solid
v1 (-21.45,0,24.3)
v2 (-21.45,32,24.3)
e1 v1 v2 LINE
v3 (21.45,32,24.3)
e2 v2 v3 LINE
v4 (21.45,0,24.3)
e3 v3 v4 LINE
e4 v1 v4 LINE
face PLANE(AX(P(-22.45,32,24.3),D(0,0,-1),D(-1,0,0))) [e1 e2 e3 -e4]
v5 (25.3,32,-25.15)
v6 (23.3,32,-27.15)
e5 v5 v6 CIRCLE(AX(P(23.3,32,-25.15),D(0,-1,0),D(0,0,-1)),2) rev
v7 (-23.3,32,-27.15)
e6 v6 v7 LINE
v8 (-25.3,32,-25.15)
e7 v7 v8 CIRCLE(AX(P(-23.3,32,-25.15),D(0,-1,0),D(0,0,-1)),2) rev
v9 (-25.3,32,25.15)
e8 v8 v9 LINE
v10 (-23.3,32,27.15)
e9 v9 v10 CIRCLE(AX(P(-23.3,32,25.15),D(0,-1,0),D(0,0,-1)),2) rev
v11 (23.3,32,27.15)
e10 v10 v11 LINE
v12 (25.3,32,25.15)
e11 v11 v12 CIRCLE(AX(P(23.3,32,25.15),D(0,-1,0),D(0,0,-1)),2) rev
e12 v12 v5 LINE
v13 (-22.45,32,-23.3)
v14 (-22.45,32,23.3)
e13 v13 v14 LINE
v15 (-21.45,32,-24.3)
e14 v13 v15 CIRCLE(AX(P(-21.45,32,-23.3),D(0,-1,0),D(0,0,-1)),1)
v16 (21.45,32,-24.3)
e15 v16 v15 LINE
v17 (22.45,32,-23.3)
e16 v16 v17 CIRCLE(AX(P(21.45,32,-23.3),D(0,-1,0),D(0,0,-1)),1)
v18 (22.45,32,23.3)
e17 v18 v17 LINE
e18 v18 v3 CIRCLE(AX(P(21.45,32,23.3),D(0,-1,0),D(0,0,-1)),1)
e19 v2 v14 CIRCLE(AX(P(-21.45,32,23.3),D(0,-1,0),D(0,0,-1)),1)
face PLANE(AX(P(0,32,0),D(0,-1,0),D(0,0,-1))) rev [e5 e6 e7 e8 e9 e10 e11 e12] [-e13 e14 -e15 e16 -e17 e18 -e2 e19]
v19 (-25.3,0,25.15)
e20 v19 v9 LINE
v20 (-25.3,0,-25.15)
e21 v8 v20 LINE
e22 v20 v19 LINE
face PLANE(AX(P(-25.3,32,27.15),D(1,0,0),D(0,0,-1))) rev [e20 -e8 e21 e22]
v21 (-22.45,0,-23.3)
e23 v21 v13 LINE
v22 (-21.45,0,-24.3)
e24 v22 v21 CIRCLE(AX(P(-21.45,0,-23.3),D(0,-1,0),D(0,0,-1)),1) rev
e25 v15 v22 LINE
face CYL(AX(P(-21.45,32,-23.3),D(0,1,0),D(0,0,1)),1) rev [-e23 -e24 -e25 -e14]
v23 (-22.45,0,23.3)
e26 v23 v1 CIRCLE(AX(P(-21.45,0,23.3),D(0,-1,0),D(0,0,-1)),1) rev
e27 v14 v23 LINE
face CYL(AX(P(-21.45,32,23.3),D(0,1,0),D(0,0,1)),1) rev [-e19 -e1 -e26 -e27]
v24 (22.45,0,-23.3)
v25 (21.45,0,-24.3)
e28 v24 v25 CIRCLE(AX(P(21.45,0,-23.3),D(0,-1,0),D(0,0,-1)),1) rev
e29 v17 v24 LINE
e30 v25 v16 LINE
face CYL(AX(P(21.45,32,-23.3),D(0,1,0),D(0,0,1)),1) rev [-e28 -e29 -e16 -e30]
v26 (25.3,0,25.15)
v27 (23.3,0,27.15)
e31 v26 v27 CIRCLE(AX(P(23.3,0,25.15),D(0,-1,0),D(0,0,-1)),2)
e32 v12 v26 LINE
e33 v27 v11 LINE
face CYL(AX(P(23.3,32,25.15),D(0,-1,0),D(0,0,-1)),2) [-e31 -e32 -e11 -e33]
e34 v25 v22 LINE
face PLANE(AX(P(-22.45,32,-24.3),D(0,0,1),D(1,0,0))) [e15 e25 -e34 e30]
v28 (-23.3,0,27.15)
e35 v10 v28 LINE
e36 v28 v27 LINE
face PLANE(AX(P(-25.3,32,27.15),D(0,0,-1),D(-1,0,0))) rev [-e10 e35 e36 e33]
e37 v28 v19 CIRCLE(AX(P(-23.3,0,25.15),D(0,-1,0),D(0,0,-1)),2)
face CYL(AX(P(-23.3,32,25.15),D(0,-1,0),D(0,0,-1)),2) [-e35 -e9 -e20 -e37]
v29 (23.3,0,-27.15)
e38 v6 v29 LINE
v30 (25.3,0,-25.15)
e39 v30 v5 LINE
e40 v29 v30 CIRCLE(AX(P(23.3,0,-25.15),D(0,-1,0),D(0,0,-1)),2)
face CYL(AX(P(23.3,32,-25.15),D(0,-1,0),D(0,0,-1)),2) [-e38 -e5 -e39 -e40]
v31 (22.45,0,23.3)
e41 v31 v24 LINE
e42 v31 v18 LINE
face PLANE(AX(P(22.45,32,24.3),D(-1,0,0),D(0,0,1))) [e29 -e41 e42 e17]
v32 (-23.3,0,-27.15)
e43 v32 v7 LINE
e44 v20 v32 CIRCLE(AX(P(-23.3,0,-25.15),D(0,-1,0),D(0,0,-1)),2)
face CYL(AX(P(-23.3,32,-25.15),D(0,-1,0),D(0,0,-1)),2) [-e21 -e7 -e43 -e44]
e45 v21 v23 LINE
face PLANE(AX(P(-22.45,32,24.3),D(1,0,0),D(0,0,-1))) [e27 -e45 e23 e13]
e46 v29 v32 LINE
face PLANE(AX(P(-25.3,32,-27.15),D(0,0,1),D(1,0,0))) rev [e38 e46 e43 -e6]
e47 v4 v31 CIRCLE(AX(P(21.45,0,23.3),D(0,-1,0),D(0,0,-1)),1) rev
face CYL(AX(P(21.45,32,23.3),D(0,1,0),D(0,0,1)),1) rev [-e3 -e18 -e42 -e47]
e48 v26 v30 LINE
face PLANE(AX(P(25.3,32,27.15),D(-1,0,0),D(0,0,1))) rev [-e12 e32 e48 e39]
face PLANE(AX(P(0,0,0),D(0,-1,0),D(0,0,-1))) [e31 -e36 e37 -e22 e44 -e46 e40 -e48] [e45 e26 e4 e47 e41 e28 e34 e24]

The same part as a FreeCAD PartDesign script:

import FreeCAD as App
import Part
import Sketcher
Q = App.Units.Quantity


def edges_at(feature, points):
    """Names of the edges that pass closest to the given points."""
    edges = feature.Shape.Edges
    near = lambda p: min(range(len(edges)), key=lambda i: edges[i].distToShape(Part.Vertex(*p))[0])
    return sorted({f"Edge{near(p) + 1}" for p in points})


def add_polygon(sketch, points):
    """Adds a closed chain of lines whose ends are joined by coincident constraints."""
    first, n = sketch.GeometryCount, len(points)
    for a, b in zip(points, points[1:] + points[:1]):
        sketch.addGeometry(Part.LineSegment(App.Vector(*a, 0), App.Vector(*b, 0)), False)
    for i in range(n):
        sketch.addConstraint(Sketcher.Constraint("Coincident", first + i, 2, first + (i + 1) % n, 1))

doc = App.newDocument("Part")
body = doc.addObject("PartDesign::Body", "Body")

sketch1 = body.newObject("Sketcher::SketchObject", "Sketch")
sketch1.AttachmentSupport = (doc.getObject("XZ_Plane"), [""])
sketch1.MapMode = "FlatFace"
add_polygon(sketch1, [(-25, -27), (-25, 27), (25, 27), (25, -27)])
add_polygon(sketch1, [(22, 24), (-22, 24), (-22, -24), (22, -24)])
sketch1.addConstraint([
    Sketcher.Constraint("Vertical", 0),
    Sketcher.Constraint("Horizontal", 1),
    Sketcher.Constraint("Vertical", 2),
    Sketcher.Constraint("Horizontal", 3),
    Sketcher.Constraint("Horizontal", 4),
    Sketcher.Constraint("Vertical", 5),
    Sketcher.Constraint("Horizontal", 6),
    Sketcher.Constraint("Vertical", 7),
    Sketcher.Constraint("Symmetric", 0, 2, 2, 2, -1, 1),
    Sketcher.Constraint("Symmetric", 4, 2, 6, 2, -1, 1),
    Sketcher.Constraint("DistanceX", 1, 1, 1, 2, Q("50.6 mm")),
    Sketcher.Constraint("DistanceX", 4, 2, 4, 1, Q("44.9 mm")),
    Sketcher.Constraint("DistanceY", 0, 1, 0, 2, Q("54.3 mm")),
    Sketcher.Constraint("DistanceY", 5, 2, 5, 1, Q("48.6 mm")),
])
pad1 = body.newObject("PartDesign::Pad", "Pad")
pad1.Profile = sketch1
pad1.Length = 32
pad1.Reversed = True
doc.recompute()

fillet = body.newObject("PartDesign::Fillet", "Fillet")
fillet.Base = (pad1, edges_at(pad1, [
    (25.3, 16, 27.15),
    (-25.3, 16, 27.15),
    (-25.3, 16, -27.15),
    (25.3, 16, -27.15),
]))
fillet.Radius = 2
doc.recompute()

fillet2 = body.newObject("PartDesign::Fillet", "Fillet001")
fillet2.Base = (fillet, edges_at(fillet, [
    (22.45, 16, 24.3),
    (22.45, 16, -24.3),
    (-22.45, 16, -24.3),
    (-22.45, 16, 24.3),
]))
fillet2.Radius = 1

doc.recompute()
